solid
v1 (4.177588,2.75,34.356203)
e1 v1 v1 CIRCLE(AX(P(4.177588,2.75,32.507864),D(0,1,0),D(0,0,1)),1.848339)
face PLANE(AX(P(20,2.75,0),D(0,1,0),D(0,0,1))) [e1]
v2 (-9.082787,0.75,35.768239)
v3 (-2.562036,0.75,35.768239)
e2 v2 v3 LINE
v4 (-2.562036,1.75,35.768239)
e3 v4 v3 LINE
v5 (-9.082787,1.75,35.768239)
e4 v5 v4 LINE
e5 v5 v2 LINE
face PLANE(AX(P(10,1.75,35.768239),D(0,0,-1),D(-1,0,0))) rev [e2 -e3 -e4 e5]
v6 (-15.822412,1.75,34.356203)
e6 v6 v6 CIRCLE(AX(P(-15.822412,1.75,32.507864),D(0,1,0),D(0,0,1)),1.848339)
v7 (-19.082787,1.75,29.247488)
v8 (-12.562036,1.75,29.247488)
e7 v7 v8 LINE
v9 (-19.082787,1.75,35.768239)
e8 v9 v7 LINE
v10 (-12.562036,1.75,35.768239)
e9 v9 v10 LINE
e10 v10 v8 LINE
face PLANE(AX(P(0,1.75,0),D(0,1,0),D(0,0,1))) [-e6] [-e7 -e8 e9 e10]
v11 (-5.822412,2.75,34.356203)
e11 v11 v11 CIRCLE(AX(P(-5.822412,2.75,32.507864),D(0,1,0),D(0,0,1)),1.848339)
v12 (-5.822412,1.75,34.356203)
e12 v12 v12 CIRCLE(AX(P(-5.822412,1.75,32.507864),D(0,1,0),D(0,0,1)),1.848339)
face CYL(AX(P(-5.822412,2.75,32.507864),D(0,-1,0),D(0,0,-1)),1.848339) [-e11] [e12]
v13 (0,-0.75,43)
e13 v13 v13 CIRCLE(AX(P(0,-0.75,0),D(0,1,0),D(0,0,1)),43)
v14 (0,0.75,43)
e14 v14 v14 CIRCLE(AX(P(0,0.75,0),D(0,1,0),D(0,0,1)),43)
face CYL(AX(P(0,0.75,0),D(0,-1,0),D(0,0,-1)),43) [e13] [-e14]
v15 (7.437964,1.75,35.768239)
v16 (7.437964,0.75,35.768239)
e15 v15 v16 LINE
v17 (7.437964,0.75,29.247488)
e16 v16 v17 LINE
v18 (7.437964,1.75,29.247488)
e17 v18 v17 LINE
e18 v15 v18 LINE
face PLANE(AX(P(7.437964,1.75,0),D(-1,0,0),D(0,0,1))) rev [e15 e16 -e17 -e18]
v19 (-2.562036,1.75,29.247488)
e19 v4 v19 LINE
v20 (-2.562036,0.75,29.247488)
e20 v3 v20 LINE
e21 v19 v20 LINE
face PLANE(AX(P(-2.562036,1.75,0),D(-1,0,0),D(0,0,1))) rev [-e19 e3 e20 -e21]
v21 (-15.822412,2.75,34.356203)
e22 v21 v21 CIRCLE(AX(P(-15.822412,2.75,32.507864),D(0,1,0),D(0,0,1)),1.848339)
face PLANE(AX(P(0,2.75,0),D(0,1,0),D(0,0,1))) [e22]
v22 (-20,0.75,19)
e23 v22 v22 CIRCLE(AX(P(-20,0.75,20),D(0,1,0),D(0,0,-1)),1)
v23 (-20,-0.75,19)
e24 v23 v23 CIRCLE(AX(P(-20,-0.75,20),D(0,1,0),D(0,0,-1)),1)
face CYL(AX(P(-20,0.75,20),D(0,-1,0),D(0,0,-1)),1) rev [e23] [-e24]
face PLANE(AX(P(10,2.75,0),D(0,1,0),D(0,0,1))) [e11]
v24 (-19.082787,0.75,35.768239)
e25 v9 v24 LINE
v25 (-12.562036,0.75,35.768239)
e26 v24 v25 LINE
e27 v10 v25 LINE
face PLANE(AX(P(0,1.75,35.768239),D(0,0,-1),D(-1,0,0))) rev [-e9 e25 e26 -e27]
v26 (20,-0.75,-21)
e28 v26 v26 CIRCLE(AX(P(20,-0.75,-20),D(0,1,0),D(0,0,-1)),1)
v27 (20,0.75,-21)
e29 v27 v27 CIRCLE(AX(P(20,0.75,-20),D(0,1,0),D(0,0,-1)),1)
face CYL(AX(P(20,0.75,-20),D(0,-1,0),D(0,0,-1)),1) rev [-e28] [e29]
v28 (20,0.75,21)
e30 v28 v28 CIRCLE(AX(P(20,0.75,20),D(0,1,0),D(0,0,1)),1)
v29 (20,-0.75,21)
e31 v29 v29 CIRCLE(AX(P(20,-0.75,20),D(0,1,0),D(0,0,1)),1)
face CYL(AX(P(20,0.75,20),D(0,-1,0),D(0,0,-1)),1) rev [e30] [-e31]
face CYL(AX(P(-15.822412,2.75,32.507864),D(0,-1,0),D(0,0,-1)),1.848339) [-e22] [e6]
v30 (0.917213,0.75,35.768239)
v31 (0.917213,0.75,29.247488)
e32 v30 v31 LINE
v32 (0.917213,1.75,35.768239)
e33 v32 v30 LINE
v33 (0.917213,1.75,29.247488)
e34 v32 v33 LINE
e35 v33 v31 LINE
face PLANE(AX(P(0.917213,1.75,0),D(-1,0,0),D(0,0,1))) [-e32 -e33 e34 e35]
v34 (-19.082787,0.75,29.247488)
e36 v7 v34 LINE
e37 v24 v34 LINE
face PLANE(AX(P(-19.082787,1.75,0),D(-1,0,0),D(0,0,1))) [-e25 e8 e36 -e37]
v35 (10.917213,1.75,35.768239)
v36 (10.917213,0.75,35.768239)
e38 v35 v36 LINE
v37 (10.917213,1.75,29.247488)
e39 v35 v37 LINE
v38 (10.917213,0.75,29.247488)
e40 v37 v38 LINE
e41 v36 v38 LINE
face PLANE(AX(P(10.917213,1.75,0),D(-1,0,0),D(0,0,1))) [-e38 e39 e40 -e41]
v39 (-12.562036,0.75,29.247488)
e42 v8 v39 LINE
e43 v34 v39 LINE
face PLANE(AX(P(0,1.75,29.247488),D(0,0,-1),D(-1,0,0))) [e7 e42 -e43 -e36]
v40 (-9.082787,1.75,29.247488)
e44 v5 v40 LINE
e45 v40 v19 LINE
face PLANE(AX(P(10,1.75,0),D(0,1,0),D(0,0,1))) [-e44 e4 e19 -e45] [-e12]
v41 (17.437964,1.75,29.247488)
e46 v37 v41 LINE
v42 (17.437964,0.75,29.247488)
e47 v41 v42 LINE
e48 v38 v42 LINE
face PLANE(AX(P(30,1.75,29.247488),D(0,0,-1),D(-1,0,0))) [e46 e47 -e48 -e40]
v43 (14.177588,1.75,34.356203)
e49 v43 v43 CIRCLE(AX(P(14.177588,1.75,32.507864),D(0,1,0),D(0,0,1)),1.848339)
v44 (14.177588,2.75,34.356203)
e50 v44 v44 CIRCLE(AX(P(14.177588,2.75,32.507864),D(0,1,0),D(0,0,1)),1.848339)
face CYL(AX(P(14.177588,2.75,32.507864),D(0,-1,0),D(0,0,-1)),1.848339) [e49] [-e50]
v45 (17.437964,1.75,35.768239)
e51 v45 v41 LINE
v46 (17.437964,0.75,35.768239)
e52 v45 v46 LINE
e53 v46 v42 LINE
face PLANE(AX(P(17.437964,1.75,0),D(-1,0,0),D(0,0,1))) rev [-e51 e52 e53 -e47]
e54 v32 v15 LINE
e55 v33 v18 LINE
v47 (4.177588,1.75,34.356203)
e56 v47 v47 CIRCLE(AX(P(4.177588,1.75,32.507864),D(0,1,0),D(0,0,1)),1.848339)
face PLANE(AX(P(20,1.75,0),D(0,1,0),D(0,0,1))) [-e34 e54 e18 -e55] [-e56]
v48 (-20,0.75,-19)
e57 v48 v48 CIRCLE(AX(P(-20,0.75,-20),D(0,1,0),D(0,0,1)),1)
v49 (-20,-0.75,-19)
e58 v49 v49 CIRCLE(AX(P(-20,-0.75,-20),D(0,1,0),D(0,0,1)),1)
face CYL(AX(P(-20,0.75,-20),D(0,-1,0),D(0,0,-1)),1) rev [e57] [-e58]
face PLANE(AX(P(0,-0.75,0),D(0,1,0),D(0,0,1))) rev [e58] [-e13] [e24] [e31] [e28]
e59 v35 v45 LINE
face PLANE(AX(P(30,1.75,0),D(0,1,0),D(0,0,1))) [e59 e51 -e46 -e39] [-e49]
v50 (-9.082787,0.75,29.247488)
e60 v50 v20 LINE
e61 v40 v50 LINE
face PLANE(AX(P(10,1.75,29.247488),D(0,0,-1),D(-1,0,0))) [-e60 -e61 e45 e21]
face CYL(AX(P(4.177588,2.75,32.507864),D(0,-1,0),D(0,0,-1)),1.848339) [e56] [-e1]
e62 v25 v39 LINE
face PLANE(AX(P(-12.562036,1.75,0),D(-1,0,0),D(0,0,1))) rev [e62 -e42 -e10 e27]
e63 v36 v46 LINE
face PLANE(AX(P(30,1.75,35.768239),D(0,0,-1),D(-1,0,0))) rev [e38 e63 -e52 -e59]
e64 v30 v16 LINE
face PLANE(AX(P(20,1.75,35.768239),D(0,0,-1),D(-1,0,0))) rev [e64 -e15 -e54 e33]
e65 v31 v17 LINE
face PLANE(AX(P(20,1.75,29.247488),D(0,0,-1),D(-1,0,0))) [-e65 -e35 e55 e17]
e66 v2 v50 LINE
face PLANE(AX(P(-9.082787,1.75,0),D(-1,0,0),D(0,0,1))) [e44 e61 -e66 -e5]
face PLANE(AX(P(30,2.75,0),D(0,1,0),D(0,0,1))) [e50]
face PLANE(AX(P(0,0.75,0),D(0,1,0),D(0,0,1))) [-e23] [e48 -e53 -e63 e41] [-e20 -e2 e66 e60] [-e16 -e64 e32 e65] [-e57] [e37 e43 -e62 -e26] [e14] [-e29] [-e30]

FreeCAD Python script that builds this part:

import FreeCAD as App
import Part
import Sketcher

V = App.Vector

doc = App.newDocument("Part")
params = doc.addObject("Spreadsheet::Sheet", "Params")
for row, (alias, value) in enumerate([
    ("sketch1_diameter", "86 mm"),
    ("sketch1_diameter2", "2 mm"),
    ("pad1_length", "1.5 mm"),
    ("pad2_length", "1 mm"),
    ("pad3_length", "2 mm"),
    ("linearpattern_pitch", "10 mm"),
], start=1):
    params.set(f"A{row}", alias)
    params.set(f"B{row}", "=" + value)
    params.setAlias(f"B{row}", alias)

body = doc.addObject("PartDesign::Body", "Body")

sketch1 = doc.addObject("Sketcher::SketchObject", "Sketch")
body.addObject(sketch1)
sketch1.AttachmentSupport = (doc.XZ_Plane, [""])
sketch1.MapMode = "FlatFace"
sketch1.addGeometry(Part.Circle(V(0, 0, 0), V(0, 0, 1), 43), False)
sketch1.addGeometry(Part.Circle(V(-20, -20, 0), V(0, 0, 1), 1), False)
sketch1.addGeometry(Part.Circle(V(-20, 20, 0), V(0, 0, 1), 1), False)
sketch1.addGeometry(Part.Circle(V(20, -20, 0), V(0, 0, 1), 1), False)
sketch1.addGeometry(Part.Circle(V(20, 20, 0), V(0, 0, 1), 1), False)
sketch1.addConstraint(Sketcher.Constraint("Coincident", 0, 3, -1, 1))
sketch1.addConstraint(Sketcher.Constraint("Equal", 1, 2))
sketch1.addConstraint(Sketcher.Constraint("Equal", 2, 3))
sketch1.addConstraint(Sketcher.Constraint("Equal", 3, 4))
sketch1.addConstraint(Sketcher.Constraint("Symmetric", 2, 3, 3, 3, -1, 1))
sketch1.addConstraint(Sketcher.Constraint("Symmetric", 1, 3, 4, 3, -1, 1))
sketch1.addConstraint(Sketcher.Constraint("Symmetric", 1, 3, 3, 3, -2))
sketch1.addConstraint(Sketcher.Constraint("Diameter", 0, 86.0))
sketch1.addConstraint(Sketcher.Constraint("Diameter", 1, 2.0))
sketch1.addConstraint(Sketcher.Constraint("DistanceX", 1, 3, -1, 1, 20.0))
sketch1.addConstraint(Sketcher.Constraint("DistanceY", 1, 3, -1, 1, 20.0))
sketch1.setExpression("Constraints[7]", "Params.sketch1_diameter")
sketch1.setExpression("Constraints[8]", "Params.sketch1_diameter2")
pad1 = doc.addObject("PartDesign::Pad", "Pad")
body.addObject(pad1)
pad1.Profile = sketch1
pad1.setExpression("Length", "Params.pad1_length")
pad1.Midplane = True

sketch2 = doc.addObject("Sketcher::SketchObject", "Sketch001")
body.addObject(sketch2)
sketch2.AttachmentSupport = (doc.XZ_Plane, [""])
sketch2.MapMode = "FlatFace"
sketch2.AttachmentOffset = App.Placement(V(0, 0, -0.75), App.Rotation())
sketch2.addGeometry(Part.LineSegment(V(-19.1, 29.2, 0), V(-19.1, 35.8, 0)), False)
sketch2.addGeometry(Part.LineSegment(V(-19.1, 35.8, 0), V(-12.6, 35.8, 0)), False)
sketch2.addGeometry(Part.LineSegment(V(-12.6, 35.8, 0), V(-12.6, 29.2, 0)), False)
sketch2.addGeometry(Part.LineSegment(V(-12.6, 29.2, 0), V(-19.1, 29.2, 0)), False)
sketch2.addGeometry(Part.Circle(V(-15.8, 32.5, 0), V(0, 0, 1), 1.8), False)
sketch2.addConstraint(Sketcher.Constraint("Coincident", 0, 2, 1, 1))
sketch2.addConstraint(Sketcher.Constraint("Coincident", 1, 2, 2, 1))
sketch2.addConstraint(Sketcher.Constraint("Coincident", 2, 2, 3, 1))
sketch2.addConstraint(Sketcher.Constraint("Coincident", 3, 2, 0, 1))
sketch2.addConstraint(Sketcher.Constraint("Vertical", 0))
sketch2.addConstraint(Sketcher.Constraint("Horizontal", 1))
sketch2.addConstraint(Sketcher.Constraint("Vertical", 2))
sketch2.addConstraint(Sketcher.Constraint("Horizontal", 3))
sketch2.addConstraint(Sketcher.Constraint("Equal", 3, 0))
sketch2.addConstraint(Sketcher.Constraint("Diameter", 4, 3.696679))
sketch2.addConstraint(Sketcher.Constraint("DistanceX", 1, 1, 1, 2, 6.520751))
sketch2.addConstraint(Sketcher.Constraint("DistanceX", 4, 3, -1, 1, 15.822412))
sketch2.addConstraint(Sketcher.Constraint("DistanceY", -1, 1, 0, 2, 35.768239))
sketch2.addConstraint(Sketcher.Constraint("DistanceY", -1, 1, 4, 3, 32.507864))
sketch2.addConstraint(Sketcher.Constraint("DistanceX", 0, 2, -1, 1, 19.082787))
pad2 = doc.addObject("PartDesign::Pad", "Pad001")
body.addObject(pad2)
pad2.Profile = sketch2
pad2.setExpression("Length", "Params.pad2_length")
pad2.Reversed = True

sketch3 = doc.addObject("Sketcher::SketchObject", "Sketch002")
body.addObject(sketch3)
sketch3.AttachmentSupport = (doc.XZ_Plane, [""])
sketch3.MapMode = "FlatFace"
sketch3.AttachmentOffset = App.Placement(V(0, 0, -0.75), App.Rotation())
sketch3.addGeometry(Part.Circle(V(-15.8, 32.5, 0), V(0, 0, 1), 1.8), False)
sketch3.addConstraint(Sketcher.Constraint("Diameter", 0, 3.696679))
sketch3.addConstraint(Sketcher.Constraint("DistanceX", 0, 3, -1, 1, 15.822412))
sketch3.addConstraint(Sketcher.Constraint("DistanceY", -1, 1, 0, 3, 32.507864))
pad3 = doc.addObject("PartDesign::Pad", "Pad002")
body.addObject(pad3)
pad3.Profile = sketch3
pad3.setExpression("Length", "Params.pad3_length")
pad3.Reversed = True
doc.recompute()

linearpattern = doc.addObject("PartDesign::LinearPattern", "LinearPattern")
body.addObject(linearpattern)
linearpattern.Originals = [pad2, pad3]
linearpattern.Direction = (doc.X_Axis, [""])
linearpattern.Mode = "offset"
linearpattern.setExpression("Offset", "Params.linearpattern_pitch")
linearpattern.Occurrences = 4
body.Tip = linearpattern

doc.recompute()
